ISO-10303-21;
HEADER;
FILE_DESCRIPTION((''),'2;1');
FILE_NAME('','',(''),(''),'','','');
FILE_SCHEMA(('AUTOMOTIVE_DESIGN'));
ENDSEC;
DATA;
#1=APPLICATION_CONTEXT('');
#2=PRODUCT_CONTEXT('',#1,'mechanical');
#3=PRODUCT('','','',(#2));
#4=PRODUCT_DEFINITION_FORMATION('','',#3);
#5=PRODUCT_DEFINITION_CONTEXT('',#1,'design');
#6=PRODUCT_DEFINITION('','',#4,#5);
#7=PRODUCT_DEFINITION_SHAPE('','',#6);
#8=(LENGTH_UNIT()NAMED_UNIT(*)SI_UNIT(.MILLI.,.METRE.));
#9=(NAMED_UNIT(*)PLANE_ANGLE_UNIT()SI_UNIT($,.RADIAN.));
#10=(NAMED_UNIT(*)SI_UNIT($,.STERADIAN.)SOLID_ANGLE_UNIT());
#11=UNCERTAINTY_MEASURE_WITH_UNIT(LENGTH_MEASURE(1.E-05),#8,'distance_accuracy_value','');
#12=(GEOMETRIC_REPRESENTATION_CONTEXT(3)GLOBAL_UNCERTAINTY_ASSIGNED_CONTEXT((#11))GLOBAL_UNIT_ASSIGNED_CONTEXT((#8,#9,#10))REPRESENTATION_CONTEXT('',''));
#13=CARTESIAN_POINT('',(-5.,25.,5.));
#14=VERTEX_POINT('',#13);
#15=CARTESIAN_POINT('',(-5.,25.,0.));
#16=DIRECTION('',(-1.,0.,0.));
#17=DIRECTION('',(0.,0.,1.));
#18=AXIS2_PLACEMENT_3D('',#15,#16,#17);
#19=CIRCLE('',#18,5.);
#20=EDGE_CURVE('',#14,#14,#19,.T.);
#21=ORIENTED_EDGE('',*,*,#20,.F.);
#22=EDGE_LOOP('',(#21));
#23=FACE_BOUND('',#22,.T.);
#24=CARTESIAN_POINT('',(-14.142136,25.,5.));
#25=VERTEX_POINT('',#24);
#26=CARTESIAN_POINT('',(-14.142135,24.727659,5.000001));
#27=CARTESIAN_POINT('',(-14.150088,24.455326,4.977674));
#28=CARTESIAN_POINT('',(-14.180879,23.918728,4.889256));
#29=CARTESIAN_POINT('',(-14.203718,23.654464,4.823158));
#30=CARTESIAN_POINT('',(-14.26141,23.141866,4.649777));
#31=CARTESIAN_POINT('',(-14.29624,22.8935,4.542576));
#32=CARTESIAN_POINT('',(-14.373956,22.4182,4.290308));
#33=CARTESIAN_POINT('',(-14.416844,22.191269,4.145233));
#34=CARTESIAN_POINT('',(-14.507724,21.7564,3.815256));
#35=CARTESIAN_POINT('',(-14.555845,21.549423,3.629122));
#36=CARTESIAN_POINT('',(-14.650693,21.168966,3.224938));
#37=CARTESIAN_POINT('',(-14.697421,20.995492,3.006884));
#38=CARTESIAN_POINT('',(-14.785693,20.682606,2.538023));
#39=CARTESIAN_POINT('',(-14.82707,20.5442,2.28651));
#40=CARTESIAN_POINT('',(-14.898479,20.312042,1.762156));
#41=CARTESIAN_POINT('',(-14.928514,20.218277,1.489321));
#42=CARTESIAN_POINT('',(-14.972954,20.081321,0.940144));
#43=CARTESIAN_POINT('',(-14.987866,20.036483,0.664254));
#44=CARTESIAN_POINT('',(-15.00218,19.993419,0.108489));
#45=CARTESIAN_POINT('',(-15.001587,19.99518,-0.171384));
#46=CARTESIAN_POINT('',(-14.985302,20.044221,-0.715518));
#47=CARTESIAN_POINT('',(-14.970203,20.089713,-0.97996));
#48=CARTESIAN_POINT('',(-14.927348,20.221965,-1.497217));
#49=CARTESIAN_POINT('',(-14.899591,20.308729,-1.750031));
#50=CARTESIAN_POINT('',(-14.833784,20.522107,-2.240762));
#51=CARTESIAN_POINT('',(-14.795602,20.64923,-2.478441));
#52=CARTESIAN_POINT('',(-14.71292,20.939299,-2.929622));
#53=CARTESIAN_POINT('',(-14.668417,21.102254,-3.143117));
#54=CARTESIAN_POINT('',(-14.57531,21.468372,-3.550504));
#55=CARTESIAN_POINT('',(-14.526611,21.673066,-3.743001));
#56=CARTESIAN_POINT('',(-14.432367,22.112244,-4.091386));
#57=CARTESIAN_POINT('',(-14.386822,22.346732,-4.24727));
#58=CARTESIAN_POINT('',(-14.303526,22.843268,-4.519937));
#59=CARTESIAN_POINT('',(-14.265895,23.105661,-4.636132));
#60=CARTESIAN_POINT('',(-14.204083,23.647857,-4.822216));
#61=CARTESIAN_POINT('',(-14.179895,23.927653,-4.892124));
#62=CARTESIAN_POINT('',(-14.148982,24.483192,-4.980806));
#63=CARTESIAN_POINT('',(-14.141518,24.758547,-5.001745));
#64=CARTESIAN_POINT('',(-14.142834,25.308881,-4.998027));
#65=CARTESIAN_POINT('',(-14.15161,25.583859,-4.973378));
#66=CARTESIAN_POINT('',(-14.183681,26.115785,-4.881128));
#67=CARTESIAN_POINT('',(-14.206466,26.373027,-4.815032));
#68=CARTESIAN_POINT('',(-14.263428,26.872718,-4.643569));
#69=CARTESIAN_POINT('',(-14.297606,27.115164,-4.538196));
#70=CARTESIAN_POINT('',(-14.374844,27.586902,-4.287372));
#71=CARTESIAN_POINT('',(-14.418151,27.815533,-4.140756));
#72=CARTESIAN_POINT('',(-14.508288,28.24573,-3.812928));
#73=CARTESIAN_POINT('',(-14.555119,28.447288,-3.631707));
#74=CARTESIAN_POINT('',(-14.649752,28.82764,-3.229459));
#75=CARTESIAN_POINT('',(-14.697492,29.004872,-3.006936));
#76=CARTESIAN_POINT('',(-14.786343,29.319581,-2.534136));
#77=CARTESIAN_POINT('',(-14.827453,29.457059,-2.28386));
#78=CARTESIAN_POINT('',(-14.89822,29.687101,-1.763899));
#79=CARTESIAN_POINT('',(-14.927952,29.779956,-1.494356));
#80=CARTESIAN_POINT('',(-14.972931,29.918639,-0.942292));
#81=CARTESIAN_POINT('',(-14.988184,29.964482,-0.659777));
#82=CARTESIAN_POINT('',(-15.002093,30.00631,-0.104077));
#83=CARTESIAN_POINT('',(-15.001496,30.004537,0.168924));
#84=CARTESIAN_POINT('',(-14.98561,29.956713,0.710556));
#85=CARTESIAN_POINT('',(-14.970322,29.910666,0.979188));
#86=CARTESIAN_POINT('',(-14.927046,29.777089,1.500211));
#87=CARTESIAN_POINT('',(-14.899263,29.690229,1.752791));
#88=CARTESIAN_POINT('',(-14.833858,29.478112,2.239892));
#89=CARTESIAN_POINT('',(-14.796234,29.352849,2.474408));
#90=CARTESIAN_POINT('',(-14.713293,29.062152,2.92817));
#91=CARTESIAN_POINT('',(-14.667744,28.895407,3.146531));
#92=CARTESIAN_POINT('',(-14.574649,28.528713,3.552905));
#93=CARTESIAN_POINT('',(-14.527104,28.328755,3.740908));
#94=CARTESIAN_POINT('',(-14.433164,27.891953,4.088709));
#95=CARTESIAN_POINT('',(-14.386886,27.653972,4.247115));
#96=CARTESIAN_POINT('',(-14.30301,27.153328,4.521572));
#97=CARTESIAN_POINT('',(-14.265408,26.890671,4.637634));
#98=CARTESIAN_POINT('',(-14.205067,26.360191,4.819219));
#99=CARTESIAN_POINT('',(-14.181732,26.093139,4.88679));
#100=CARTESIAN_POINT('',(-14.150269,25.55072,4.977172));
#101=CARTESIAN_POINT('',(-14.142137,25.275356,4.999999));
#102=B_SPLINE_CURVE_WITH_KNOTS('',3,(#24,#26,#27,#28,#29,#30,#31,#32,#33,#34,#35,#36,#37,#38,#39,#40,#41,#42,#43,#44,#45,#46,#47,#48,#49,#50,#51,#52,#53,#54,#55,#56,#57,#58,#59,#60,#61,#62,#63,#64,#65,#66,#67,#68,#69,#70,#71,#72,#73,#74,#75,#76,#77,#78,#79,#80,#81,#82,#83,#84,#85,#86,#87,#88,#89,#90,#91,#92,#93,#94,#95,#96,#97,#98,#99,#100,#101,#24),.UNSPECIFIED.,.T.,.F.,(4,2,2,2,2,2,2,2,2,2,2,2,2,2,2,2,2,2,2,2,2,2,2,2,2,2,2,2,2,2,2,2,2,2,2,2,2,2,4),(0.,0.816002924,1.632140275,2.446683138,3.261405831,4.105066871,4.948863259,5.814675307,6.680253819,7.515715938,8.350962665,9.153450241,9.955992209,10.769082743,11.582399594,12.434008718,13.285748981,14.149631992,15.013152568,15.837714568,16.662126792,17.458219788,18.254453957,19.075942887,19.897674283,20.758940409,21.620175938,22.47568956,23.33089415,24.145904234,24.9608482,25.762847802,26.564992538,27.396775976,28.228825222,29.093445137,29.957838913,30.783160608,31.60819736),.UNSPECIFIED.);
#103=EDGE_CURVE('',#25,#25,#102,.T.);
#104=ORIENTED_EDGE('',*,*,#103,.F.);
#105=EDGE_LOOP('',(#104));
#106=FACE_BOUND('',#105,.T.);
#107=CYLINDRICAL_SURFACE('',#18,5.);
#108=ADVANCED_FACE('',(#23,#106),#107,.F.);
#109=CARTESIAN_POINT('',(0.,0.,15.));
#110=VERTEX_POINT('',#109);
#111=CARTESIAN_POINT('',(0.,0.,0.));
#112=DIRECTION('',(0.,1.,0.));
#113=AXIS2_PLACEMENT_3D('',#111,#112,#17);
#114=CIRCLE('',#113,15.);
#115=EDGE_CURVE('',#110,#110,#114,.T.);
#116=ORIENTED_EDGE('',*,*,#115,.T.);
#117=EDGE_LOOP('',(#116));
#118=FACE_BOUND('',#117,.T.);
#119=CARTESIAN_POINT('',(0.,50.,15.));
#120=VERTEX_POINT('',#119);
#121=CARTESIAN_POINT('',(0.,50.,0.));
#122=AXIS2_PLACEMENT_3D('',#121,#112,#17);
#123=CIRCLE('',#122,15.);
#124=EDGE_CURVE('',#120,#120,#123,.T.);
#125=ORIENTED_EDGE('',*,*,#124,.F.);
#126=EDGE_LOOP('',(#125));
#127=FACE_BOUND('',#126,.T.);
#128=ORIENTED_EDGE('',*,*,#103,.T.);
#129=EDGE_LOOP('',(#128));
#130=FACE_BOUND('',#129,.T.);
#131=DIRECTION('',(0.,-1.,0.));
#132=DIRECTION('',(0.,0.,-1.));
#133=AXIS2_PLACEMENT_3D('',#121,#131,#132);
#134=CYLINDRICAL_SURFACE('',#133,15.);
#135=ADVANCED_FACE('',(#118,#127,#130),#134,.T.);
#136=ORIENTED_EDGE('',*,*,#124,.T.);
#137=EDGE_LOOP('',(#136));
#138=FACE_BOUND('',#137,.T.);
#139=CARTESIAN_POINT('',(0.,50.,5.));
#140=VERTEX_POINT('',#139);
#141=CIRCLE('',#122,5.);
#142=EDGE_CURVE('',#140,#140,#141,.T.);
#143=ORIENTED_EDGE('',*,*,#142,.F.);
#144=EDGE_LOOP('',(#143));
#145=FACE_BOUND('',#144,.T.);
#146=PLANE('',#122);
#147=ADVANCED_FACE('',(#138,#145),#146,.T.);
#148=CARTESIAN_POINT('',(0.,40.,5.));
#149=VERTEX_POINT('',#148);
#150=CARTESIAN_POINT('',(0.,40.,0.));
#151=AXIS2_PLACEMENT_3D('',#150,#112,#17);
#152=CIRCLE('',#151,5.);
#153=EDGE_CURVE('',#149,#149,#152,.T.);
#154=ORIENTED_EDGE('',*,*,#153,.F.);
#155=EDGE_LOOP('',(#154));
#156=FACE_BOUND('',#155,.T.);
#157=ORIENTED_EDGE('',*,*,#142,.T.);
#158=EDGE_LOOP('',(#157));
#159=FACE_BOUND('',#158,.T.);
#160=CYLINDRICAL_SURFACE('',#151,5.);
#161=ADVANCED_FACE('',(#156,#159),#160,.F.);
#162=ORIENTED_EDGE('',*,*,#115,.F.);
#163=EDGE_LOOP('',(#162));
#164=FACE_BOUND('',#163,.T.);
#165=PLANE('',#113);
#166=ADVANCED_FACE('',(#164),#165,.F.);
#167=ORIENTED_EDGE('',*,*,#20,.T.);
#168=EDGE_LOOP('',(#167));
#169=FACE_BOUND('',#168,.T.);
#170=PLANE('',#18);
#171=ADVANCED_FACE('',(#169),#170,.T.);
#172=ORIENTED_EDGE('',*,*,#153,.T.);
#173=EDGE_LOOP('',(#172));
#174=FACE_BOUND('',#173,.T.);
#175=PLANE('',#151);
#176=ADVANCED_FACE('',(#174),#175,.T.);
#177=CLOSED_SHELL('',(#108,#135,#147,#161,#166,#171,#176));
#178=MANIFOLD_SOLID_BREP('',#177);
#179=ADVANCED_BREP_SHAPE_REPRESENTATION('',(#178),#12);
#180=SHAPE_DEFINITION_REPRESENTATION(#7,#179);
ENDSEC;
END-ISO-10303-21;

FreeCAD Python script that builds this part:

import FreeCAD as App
import Part
import Sketcher

doc = App.newDocument("Part")
body = doc.addObject("PartDesign::Body", "Body")

sketch1 = body.newObject("Sketcher::SketchObject", "Sketch")
sketch1.AttachmentSupport = (doc.getObject("XZ_Plane"), [""])
sketch1.MapMode = "FlatFace"
sketch1.addGeometry(Part.Circle(App.Vector(0, 0, 0), App.Vector(0, 0, 1), 15), False)
sketch1.addConstraint([
    Sketcher.Constraint("Coincident", 0, 3, -1, 1),
    Sketcher.Constraint("Diameter", 0, 30.0),
])
pad1 = body.newObject("PartDesign::Pad", "Pad")
pad1.Profile = sketch1
pad1.Length = 50
pad1.Reversed = True

sketch2 = body.newObject("Sketcher::SketchObject", "Sketch001")
sketch2.AttachmentSupport = (doc.getObject("YZ_Plane"), [""])
sketch2.MapMode = "FlatFace"
sketch2.AttachmentOffset = App.Placement(App.Vector(0, 0, -25), App.Rotation())
sketch2.addGeometry(Part.Circle(App.Vector(25, 0, 0), App.Vector(0, 0, 1), 5), False)
sketch2.addConstraint([
    Sketcher.Constraint("PointOnObject", 0, 3, -1),
    Sketcher.Constraint("Diameter", 0, 10.0),
    Sketcher.Constraint("DistanceX", -1, 1, 0, 3, 25.0),
])
pocket1 = body.newObject("PartDesign::Pocket", "Pocket")
pocket1.Profile = sketch2
pocket1.Length = 20
pocket1.Reversed = True

sketch3 = body.newObject("Sketcher::SketchObject", "Sketch002")
sketch3.AttachmentSupport = (doc.getObject("XZ_Plane"), [""])
sketch3.MapMode = "FlatFace"
sketch3.AttachmentOffset = App.Placement(App.Vector(0, 0, -50), App.Rotation())
sketch3.addGeometry(Part.Circle(App.Vector(0, 0, 0), App.Vector(0, 0, 1), 5), False)
sketch3.addConstraint([
    Sketcher.Constraint("Coincident", 0, 3, -1, 1),
    Sketcher.Constraint("Diameter", 0, 10.0),
])
pocket2 = body.newObject("PartDesign::Pocket", "Pocket001")
pocket2.Profile = sketch3
pocket2.Length = 10
pocket2.Reversed = True

doc.recompute()
